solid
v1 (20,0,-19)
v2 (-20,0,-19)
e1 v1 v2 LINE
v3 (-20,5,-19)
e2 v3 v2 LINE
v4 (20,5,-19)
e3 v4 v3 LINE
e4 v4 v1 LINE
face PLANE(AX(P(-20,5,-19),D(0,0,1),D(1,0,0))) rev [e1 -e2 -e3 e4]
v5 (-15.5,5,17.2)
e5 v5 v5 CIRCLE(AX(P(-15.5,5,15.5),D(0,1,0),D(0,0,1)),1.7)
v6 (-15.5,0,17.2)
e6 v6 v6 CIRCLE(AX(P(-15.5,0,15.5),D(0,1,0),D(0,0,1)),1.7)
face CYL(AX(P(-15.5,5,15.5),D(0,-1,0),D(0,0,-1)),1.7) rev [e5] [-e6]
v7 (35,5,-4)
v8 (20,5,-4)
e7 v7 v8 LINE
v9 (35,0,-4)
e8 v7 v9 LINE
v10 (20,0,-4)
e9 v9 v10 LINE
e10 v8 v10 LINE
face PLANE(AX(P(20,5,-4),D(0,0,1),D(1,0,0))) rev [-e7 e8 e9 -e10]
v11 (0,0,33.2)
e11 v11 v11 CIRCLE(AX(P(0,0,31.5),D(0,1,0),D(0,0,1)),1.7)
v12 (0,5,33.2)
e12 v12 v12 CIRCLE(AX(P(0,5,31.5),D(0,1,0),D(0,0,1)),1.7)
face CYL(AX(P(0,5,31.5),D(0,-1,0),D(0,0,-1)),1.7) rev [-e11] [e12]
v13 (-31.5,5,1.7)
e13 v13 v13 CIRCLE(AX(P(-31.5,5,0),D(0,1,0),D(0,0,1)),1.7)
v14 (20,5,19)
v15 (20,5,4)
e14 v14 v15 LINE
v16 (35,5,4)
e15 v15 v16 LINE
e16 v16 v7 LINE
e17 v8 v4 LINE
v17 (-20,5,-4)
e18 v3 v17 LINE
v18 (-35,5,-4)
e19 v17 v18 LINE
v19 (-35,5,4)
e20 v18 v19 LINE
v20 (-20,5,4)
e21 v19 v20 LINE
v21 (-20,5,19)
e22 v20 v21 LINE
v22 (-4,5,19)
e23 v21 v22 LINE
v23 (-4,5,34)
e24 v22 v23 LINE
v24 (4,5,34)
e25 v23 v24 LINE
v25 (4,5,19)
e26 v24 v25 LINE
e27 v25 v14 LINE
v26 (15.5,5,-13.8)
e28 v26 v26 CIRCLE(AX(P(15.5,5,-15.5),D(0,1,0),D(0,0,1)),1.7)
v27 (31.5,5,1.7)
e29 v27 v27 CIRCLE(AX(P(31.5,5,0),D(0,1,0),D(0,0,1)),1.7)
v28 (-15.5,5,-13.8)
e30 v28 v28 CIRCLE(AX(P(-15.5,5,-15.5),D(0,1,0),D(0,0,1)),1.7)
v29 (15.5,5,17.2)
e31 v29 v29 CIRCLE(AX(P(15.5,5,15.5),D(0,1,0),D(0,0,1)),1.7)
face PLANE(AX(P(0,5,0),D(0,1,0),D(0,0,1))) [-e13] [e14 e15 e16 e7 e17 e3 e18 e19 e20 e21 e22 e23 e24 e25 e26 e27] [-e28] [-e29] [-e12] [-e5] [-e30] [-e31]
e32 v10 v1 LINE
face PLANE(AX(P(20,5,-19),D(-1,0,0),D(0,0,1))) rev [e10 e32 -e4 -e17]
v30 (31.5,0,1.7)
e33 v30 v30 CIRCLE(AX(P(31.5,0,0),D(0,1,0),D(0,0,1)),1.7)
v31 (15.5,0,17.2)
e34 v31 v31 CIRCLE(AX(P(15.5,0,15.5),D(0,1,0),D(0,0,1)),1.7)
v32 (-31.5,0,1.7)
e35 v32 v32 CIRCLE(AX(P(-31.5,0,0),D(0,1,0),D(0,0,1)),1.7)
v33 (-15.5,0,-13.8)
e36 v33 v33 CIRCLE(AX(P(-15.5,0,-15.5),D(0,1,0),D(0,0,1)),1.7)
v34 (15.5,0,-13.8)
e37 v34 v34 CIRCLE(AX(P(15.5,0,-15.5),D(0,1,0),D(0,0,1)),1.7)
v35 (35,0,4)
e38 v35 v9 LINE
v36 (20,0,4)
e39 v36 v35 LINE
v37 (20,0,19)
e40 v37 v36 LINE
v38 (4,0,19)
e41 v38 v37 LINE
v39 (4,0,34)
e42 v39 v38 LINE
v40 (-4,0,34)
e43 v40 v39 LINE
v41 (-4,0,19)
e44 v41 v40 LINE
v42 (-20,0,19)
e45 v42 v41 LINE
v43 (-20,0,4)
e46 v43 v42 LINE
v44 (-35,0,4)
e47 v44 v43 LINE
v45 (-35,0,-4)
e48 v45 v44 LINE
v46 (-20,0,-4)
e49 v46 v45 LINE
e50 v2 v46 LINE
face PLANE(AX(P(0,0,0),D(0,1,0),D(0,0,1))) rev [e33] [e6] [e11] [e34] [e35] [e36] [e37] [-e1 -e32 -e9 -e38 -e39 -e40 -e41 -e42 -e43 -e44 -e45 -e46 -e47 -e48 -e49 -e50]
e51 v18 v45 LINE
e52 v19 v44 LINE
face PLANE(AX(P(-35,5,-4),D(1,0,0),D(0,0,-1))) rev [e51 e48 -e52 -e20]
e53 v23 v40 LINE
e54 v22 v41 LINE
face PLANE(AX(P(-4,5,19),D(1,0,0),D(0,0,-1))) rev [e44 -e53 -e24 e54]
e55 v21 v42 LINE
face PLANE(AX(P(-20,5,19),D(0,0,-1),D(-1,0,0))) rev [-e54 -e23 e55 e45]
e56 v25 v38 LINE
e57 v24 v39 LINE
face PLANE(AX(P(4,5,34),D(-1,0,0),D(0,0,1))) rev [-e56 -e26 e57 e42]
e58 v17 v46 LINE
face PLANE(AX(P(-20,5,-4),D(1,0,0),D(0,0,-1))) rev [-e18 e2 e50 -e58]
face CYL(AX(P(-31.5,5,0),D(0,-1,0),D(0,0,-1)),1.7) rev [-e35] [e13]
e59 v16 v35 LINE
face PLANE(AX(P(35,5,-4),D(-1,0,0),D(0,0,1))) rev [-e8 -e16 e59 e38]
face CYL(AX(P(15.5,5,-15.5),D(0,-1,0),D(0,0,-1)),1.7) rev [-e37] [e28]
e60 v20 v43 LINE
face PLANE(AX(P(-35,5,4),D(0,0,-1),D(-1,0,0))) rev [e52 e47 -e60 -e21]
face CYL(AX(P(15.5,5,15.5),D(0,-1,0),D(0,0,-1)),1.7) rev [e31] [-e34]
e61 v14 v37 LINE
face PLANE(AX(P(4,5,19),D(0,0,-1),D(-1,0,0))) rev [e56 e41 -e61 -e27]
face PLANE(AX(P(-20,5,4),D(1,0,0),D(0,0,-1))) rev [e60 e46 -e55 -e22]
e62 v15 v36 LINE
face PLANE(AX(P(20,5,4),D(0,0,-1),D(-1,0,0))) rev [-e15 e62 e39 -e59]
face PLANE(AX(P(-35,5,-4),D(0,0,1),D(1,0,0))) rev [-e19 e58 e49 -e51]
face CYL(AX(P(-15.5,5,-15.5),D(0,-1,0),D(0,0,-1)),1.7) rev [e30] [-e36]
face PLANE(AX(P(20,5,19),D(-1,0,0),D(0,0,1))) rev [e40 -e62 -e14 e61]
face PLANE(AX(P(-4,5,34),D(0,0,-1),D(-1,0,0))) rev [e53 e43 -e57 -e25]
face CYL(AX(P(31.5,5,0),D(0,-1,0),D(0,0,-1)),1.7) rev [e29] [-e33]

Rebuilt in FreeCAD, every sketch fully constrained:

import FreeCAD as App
import Part
import Sketcher


def add_polygon(sketch, points):
    """Adds a closed chain of lines whose ends are joined by coincident constraints."""
    first, n = sketch.GeometryCount, len(points)
    for a, b in zip(points, points[1:] + points[:1]):
        sketch.addGeometry(Part.LineSegment(App.Vector(*a, 0), App.Vector(*b, 0)), False)
    for i in range(n):
        sketch.addConstraint(Sketcher.Constraint("Coincident", first + i, 2, first + (i + 1) % n, 1))

doc = App.newDocument("Part")
params = doc.addObject("Spreadsheet::Sheet", "Params")
for row, (alias, value) in enumerate([
    ("sketch1_diameter", "3.4 mm"),
    ("sketch1_width", "15 mm"),
    ("sketch1_width2", "16 mm"),
    ("sketch1_width3", "8 mm"),
    ("pad1_length", "5 mm"),
], start=1):
    params.set(f"A{row}", alias)
    params.set(f"B{row}", "=" + value)
    params.setAlias(f"B{row}", alias)

body = doc.addObject("PartDesign::Body", "Body")

# Sketch on XZ plane
sketch1 = body.newObject("Sketcher::SketchObject", "Sketch")
sketch1.AttachmentSupport = (doc.getObject("XZ_Plane"), [""])
sketch1.MapMode = "FlatFace"
add_polygon(sketch1, [(-20, -4), (-35, -4), (-35, 4), (-20, 4), (-20, 19), (-4, 19), (-4, 34), (4, 34), (4, 19), (20, 19), (20, 4), (35, 4), (35, -4), (20, -4), (20, -19), (-20, -19)])  # lines 0-15
sketch1.addGeometry(Part.Circle(App.Vector(15.5, 15.5, 0), App.Vector(0, 0, 1), 1.7), False)  # 16
sketch1.addGeometry(Part.Circle(App.Vector(0, 31.5, 0), App.Vector(0, 0, 1), 1.7), False)  # 17
sketch1.addGeometry(Part.Circle(App.Vector(-15.5, 15.5, 0), App.Vector(0, 0, 1), 1.7), False)  # 18
sketch1.addGeometry(Part.Circle(App.Vector(31.5, 0, 0), App.Vector(0, 0, 1), 1.7), False)  # 19
sketch1.addGeometry(Part.Circle(App.Vector(15.5, -15.5, 0), App.Vector(0, 0, 1), 1.7), False)  # 20
sketch1.addGeometry(Part.Circle(App.Vector(-31.5, 0, 0), App.Vector(0, 0, 1), 1.7), False)  # 21
sketch1.addGeometry(Part.Circle(App.Vector(-15.5, -15.5, 0), App.Vector(0, 0, 1), 1.7), False)  # 22
sketch1.addConstraint([
    Sketcher.Constraint("Horizontal", 0),
    Sketcher.Constraint("Vertical", 1),
    Sketcher.Constraint("Horizontal", 2),
    Sketcher.Constraint("Vertical", 3),
    Sketcher.Constraint("Horizontal", 4),
    Sketcher.Constraint("Vertical", 5),
    Sketcher.Constraint("Horizontal", 6),
    Sketcher.Constraint("Vertical", 7),
    Sketcher.Constraint("Horizontal", 8),
    Sketcher.Constraint("Vertical", 9),
    Sketcher.Constraint("Horizontal", 10),
    Sketcher.Constraint("Vertical", 11),
    Sketcher.Constraint("Horizontal", 12),
    Sketcher.Constraint("Vertical", 13),
    Sketcher.Constraint("Horizontal", 14),
    Sketcher.Constraint("Vertical", 15),
    Sketcher.Constraint("Equal", 16, 17),
    Sketcher.Constraint("Equal", 17, 18),
    Sketcher.Constraint("Equal", 18, 19),
    Sketcher.Constraint("Equal", 19, 20),
    Sketcher.Constraint("Equal", 20, 21),
    Sketcher.Constraint("Equal", 21, 22),
    Sketcher.Constraint("Symmetric", 18, 3, 20, 3, -1, 1),
    Sketcher.Constraint("Symmetric", 19, 3, 21, 3, -1, 1),
    Sketcher.Constraint("Symmetric", 16, 3, 22, 3, -1, 1),
    Sketcher.Constraint("Symmetric", 0, 2, 10, 2, -1, 1),
    Sketcher.Constraint("Symmetric", 2, 2, 12, 2, -1, 1),
    Sketcher.Constraint("Symmetric", 8, 2, 14, 2, -1, 1),
    Sketcher.Constraint("Symmetric", 16, 3, 18, 3, -2),
    Sketcher.Constraint("Symmetric", 4, 2, 7, 2, -2),
    Sketcher.Constraint("Symmetric", 2, 2, 9, 2, -2),
    Sketcher.Constraint("PointOnObject", 17, 3, -2),
    Sketcher.Constraint("PointOnObject", 19, 3, -1),
    Sketcher.Constraint("Equal", 6, 1),
    Sketcher.Constraint("Equal", 12, 3),
    Sketcher.Constraint("Equal", 3, 5),
    Sketcher.Constraint("Diameter", 16, 3.4),
    Sketcher.Constraint("DistanceX", 0, 2, 0, 1, 15.0),
    Sketcher.Constraint("DistanceX", 4, 1, 4, 2, 16.0),
    Sketcher.Constraint("DistanceX", 6, 1, 6, 2, 8.0),
    Sketcher.Constraint("DistanceY", 16, 3, 17, 3, 16.0),
    Sketcher.Constraint("DistanceX", 18, 3, 16, 3, 31.0),
    Sketcher.Constraint("DistanceX", 16, 3, 19, 3, 16.0),
    Sketcher.Constraint("DistanceY", 20, 3, 16, 3, 31.0),
])
sketch1.setExpression("Constraints[52]", "Params.sketch1_diameter")
sketch1.setExpression("Constraints[53]", "Params.sketch1_width")
sketch1.setExpression("Constraints[54]", "Params.sketch1_width2")
sketch1.setExpression("Constraints[55]", "Params.sketch1_width3")
pad1 = body.newObject("PartDesign::Pad", "Pad")
pad1.Profile = sketch1
pad1.setExpression("Length", "Params.pad1_length")
pad1.Reversed = True

doc.recompute()
